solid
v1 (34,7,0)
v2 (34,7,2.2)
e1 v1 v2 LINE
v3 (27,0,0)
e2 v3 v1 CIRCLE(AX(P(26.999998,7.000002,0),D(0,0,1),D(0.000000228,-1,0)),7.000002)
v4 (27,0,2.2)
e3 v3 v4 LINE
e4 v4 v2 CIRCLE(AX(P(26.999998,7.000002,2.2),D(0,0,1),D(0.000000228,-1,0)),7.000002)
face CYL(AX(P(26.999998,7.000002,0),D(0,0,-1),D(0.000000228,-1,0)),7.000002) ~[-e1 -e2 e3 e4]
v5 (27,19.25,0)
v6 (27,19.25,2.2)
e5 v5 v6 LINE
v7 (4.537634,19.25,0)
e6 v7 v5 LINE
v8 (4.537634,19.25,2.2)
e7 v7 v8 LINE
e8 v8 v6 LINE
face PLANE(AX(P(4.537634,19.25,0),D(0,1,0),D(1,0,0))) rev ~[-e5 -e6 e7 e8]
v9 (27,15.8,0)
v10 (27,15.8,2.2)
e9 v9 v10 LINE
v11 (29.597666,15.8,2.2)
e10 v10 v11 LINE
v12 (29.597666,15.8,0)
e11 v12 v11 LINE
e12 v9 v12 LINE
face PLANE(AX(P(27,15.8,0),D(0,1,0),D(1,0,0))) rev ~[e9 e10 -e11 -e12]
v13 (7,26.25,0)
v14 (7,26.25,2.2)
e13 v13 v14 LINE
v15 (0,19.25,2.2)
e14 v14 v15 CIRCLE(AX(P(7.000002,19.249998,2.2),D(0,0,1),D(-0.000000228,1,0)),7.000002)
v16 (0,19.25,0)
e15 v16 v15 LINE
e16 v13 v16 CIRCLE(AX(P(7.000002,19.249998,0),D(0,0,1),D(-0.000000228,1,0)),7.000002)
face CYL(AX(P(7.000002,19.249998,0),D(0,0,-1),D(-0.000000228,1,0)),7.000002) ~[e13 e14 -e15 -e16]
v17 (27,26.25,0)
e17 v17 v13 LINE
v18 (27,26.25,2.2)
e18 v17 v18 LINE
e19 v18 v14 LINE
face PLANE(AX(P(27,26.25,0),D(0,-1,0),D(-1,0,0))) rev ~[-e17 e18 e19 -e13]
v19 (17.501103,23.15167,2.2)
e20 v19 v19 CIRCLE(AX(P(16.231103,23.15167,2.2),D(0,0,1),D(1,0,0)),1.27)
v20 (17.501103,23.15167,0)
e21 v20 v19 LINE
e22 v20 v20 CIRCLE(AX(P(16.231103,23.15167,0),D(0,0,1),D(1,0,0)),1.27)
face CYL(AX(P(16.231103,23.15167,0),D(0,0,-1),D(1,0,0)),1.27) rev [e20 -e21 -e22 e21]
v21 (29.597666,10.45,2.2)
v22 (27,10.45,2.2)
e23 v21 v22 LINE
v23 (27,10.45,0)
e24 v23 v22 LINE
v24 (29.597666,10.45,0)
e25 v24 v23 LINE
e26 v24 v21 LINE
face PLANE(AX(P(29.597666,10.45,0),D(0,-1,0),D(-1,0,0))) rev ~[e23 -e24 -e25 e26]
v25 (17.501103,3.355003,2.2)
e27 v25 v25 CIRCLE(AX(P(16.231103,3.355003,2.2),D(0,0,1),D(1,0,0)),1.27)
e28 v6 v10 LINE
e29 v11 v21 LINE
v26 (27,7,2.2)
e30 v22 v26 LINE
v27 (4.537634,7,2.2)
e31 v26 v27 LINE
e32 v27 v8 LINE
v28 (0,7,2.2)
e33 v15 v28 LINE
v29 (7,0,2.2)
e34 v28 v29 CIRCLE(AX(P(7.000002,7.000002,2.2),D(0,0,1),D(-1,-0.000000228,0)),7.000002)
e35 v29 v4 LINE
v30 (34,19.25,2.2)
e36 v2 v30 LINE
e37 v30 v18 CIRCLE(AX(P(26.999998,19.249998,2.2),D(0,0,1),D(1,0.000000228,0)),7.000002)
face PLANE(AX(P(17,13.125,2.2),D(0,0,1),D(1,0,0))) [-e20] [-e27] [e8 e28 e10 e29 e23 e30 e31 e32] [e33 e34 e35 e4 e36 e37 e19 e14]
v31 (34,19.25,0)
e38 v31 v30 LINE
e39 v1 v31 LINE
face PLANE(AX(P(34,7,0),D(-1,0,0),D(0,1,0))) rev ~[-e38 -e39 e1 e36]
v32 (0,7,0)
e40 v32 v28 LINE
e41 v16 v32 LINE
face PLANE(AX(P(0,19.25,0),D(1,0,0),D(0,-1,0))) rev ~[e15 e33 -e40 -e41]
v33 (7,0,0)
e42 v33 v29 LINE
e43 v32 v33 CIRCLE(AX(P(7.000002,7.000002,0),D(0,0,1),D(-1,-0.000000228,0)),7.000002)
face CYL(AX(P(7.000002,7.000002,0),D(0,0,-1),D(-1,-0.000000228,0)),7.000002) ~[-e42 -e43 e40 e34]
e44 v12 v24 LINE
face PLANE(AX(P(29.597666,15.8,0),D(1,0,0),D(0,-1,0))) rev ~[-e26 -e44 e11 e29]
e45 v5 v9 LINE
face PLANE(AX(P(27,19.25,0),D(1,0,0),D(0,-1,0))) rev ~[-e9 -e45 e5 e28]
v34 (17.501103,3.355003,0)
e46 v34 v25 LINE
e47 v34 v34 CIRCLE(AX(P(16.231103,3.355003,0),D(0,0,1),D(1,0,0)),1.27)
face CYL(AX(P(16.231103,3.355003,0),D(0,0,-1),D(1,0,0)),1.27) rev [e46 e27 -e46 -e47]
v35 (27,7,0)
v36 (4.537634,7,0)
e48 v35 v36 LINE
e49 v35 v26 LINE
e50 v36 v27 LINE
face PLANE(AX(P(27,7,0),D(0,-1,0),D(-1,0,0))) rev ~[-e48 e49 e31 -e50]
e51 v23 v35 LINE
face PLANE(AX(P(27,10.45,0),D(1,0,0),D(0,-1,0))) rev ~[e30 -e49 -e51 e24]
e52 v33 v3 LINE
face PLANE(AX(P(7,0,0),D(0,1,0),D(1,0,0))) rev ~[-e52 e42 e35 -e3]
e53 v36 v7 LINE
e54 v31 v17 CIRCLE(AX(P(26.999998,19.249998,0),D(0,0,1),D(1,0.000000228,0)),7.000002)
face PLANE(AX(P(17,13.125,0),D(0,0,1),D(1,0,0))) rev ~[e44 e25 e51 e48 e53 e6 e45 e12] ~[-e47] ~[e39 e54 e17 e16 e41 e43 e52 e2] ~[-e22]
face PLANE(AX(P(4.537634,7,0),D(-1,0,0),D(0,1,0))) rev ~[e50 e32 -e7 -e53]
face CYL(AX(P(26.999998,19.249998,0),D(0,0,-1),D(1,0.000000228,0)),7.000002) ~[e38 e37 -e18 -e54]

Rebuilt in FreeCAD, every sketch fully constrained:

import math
import FreeCAD as App
import Part
import Sketcher
Q = App.Units.Quantity

doc = App.newDocument("Part")
body = doc.addObject("PartDesign::Body", "Body")

# Sketch on XY plane
sketch1 = doc.addObject("Sketcher::SketchObject", "Sketch")
body.addObject(sketch1)
sketch1.AttachmentSupport = (doc.XY_Plane, [""])
sketch1.MapMode = "FlatFace"
sketch1.addGeometry([
    Part.ArcOfCircle(Part.Circle(App.Vector(7.000002, 7.000002, 0), App.Vector(0, 0, 1), 7.000002), math.radians(-179.999987), math.radians(-90.000013)),  # 0
    Part.LineSegment(App.Vector(7, 0, 0), App.Vector(27, 0, 0)),  # 1
    Part.ArcOfCircle(Part.Circle(App.Vector(26.999998, 7.000002, 0), App.Vector(0, 0, 1), 7.000002), math.radians(-89.999987), math.radians(-0.000013)),  # 2
    Part.LineSegment(App.Vector(34, 7, 0), App.Vector(34, 19.25, 0)),  # 3
    Part.ArcOfCircle(Part.Circle(App.Vector(26.999998, 19.249998, 0), App.Vector(0, 0, 1), 7.000002), math.radians(0.000013), math.radians(89.999987)),  # 4
    Part.LineSegment(App.Vector(27, 26.25, 0), App.Vector(7, 26.25, 0)),  # 5
    Part.ArcOfCircle(Part.Circle(App.Vector(7.000002, 19.249998, 0), App.Vector(0, 0, 1), 7.000002), math.radians(90.000013), math.radians(179.999987)),  # 6
    Part.LineSegment(App.Vector(0, 19.25, 0), App.Vector(0, 7, 0)),  # 7
    Part.Circle(App.Vector(16.231103, 3.355003, 0), App.Vector(0, 0, 1), 1.27),  # 8
    Part.LineSegment(App.Vector(27, 7, 0), App.Vector(4.537634, 7, 0)),  # 9
    Part.LineSegment(App.Vector(4.537634, 7, 0), App.Vector(4.537634, 19.25, 0)),  # 10
    Part.LineSegment(App.Vector(4.537634, 19.25, 0), App.Vector(27, 19.25, 0)),  # 11
    Part.LineSegment(App.Vector(27, 19.25, 0), App.Vector(27, 15.8, 0)),  # 12
    Part.LineSegment(App.Vector(27, 15.8, 0), App.Vector(29.597666, 15.8, 0)),  # 13
    Part.LineSegment(App.Vector(29.597666, 15.8, 0), App.Vector(29.597666, 10.45, 0)),  # 14
    Part.LineSegment(App.Vector(29.597666, 10.45, 0), App.Vector(27, 10.45, 0)),  # 15
    Part.LineSegment(App.Vector(27, 10.45, 0), App.Vector(27, 7, 0)),  # 16
    Part.Circle(App.Vector(16.231103, 23.15167, 0), App.Vector(0, 0, 1), 1.27),  # 17
], False)
sketch1.addConstraint([
    Sketcher.Constraint("Tangent", 0, 2, 1, 1),
    Sketcher.Constraint("Tangent", 1, 2, 2, 1),
    Sketcher.Constraint("Tangent", 2, 2, 3, 1),
    Sketcher.Constraint("Tangent", 3, 2, 4, 1),
    Sketcher.Constraint("Tangent", 4, 2, 5, 1),
    Sketcher.Constraint("Tangent", 5, 2, 6, 1),
    Sketcher.Constraint("Tangent", 6, 2, 7, 1),
    Sketcher.Constraint("Tangent", 7, 2, 0, 1),
    Sketcher.Constraint("Coincident", 9, 2, 10, 1),
    Sketcher.Constraint("Coincident", 10, 2, 11, 1),
    Sketcher.Constraint("Coincident", 11, 2, 12, 1),
    Sketcher.Constraint("Coincident", 12, 2, 13, 1),
    Sketcher.Constraint("Coincident", 13, 2, 14, 1),
    Sketcher.Constraint("Coincident", 14, 2, 15, 1),
    Sketcher.Constraint("Coincident", 15, 2, 16, 1),
    Sketcher.Constraint("Coincident", 16, 2, 9, 1),
    Sketcher.Constraint("Horizontal", 1),
    Sketcher.Constraint("Vertical", 3),
    Sketcher.Constraint("Horizontal", 5),
    Sketcher.Constraint("Vertical", 7),
    Sketcher.Constraint("Horizontal", 9),
    Sketcher.Constraint("Vertical", 10),
    Sketcher.Constraint("Horizontal", 11),
    Sketcher.Constraint("Vertical", 12),
    Sketcher.Constraint("Horizontal", 13),
    Sketcher.Constraint("Vertical", 14),
    Sketcher.Constraint("Horizontal", 15),
    Sketcher.Constraint("Vertical", 16),
    Sketcher.Constraint("Coincident", 11, 2, 4, 3),
    Sketcher.Constraint("Coincident", 16, 2, 2, 3),
    Sketcher.Constraint("Equal", 0, 2),
    Sketcher.Constraint("Equal", 2, 4),
    Sketcher.Constraint("Equal", 4, 6),
    Sketcher.Constraint("Equal", 8, 17),
    Sketcher.Constraint("PointOnObject", 0, 2, -1),
    Sketcher.Constraint("PointOnObject", 6, 2, -2),
    Sketcher.Constraint("Vertical", 8, 3, 17, 3),
    Sketcher.Constraint("Equal", 12, 16),
    Sketcher.Constraint("Radius", 0, Q("7.000002 mm")),
    Sketcher.Constraint("Diameter", 8, Q("2.54 mm")),
    Sketcher.Constraint("DistanceX", 1, 1, 1, 2, Q("20 mm")),
    Sketcher.Constraint("DistanceY", 3, 1, 3, 2, Q("12.25 mm")),
    Sketcher.Constraint("DistanceY", 12, 2, 12, 1, Q("3.45 mm")),
    Sketcher.Constraint("DistanceY", 8, 3, 0, 3, Q("3.644999 mm")),
    Sketcher.Constraint("DistanceX", 0, 3, 8, 3, Q("9.231101 mm")),
    Sketcher.Constraint("DistanceX", 9, 2, 9, 1, Q("22.462366 mm")),
    Sketcher.Constraint("DistanceX", 13, 1, 13, 2, Q("2.597666 mm")),
    Sketcher.Constraint("DistanceY", -1, 1, 17, 3, Q("23.15167 mm")),
])
pad1 = doc.addObject("PartDesign::Pad", "Pad")
body.addObject(pad1)
pad1.Profile = sketch1
pad1.Length = 2.2

doc.recompute()
